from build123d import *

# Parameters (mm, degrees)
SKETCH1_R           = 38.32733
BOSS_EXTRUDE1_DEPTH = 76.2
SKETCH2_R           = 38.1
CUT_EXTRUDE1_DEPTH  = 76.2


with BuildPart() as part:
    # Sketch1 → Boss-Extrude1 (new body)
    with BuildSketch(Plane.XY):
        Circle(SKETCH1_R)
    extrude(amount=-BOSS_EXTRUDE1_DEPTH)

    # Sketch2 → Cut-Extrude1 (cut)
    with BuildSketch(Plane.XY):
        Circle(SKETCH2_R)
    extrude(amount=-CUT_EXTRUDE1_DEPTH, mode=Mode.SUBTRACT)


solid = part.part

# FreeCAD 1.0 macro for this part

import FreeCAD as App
import Part
import Sketcher
from FreeCAD import Vector
Q = App.Units.Quantity

doc = App.newDocument("Part")
body = doc.addObject("PartDesign::Body", "Body")

# Sketch on XY plane
sketch1 = body.newObject("Sketcher::SketchObject", "Sketch")
sketch1.AttachmentSupport = (doc.getObject("XY_Plane"), [""])
sketch1.MapMode = "FlatFace"
sketch1.addGeometry(Part.Circle(Vector(0, 0, 0), Vector(0, 0, 1), 38.32733), False)
sketch1.addConstraint(Sketcher.Constraint("Coincident", 0, 3, -1, 1))
sketch1.addConstraint(Sketcher.Constraint("Diameter", 0, Q("3.0179 in")))
pad1 = body.newObject("PartDesign::Pad", "Pad")
pad1.Profile = sketch1
pad1.Length = Q("3 in")
pad1.Reversed = True

# Sketch on XY plane
sketch2 = body.newObject("Sketcher::SketchObject", "Sketch001")
sketch2.AttachmentSupport = (doc.getObject("XY_Plane"), [""])
sketch2.MapMode = "FlatFace"
sketch2.addGeometry(Part.Circle(Vector(0, 0, 0), Vector(0, 0, 1), 38.1), False)
sketch2.addConstraint(Sketcher.Constraint("Coincident", 0, 3, -1, 1))
sketch2.addConstraint(Sketcher.Constraint("Diameter", 0, Q("3 in")))
pocket1 = body.newObject("PartDesign::Pocket", "Pocket")
pocket1.Profile = sketch2
pocket1.Length = Q("3 in")

doc.recompute()
